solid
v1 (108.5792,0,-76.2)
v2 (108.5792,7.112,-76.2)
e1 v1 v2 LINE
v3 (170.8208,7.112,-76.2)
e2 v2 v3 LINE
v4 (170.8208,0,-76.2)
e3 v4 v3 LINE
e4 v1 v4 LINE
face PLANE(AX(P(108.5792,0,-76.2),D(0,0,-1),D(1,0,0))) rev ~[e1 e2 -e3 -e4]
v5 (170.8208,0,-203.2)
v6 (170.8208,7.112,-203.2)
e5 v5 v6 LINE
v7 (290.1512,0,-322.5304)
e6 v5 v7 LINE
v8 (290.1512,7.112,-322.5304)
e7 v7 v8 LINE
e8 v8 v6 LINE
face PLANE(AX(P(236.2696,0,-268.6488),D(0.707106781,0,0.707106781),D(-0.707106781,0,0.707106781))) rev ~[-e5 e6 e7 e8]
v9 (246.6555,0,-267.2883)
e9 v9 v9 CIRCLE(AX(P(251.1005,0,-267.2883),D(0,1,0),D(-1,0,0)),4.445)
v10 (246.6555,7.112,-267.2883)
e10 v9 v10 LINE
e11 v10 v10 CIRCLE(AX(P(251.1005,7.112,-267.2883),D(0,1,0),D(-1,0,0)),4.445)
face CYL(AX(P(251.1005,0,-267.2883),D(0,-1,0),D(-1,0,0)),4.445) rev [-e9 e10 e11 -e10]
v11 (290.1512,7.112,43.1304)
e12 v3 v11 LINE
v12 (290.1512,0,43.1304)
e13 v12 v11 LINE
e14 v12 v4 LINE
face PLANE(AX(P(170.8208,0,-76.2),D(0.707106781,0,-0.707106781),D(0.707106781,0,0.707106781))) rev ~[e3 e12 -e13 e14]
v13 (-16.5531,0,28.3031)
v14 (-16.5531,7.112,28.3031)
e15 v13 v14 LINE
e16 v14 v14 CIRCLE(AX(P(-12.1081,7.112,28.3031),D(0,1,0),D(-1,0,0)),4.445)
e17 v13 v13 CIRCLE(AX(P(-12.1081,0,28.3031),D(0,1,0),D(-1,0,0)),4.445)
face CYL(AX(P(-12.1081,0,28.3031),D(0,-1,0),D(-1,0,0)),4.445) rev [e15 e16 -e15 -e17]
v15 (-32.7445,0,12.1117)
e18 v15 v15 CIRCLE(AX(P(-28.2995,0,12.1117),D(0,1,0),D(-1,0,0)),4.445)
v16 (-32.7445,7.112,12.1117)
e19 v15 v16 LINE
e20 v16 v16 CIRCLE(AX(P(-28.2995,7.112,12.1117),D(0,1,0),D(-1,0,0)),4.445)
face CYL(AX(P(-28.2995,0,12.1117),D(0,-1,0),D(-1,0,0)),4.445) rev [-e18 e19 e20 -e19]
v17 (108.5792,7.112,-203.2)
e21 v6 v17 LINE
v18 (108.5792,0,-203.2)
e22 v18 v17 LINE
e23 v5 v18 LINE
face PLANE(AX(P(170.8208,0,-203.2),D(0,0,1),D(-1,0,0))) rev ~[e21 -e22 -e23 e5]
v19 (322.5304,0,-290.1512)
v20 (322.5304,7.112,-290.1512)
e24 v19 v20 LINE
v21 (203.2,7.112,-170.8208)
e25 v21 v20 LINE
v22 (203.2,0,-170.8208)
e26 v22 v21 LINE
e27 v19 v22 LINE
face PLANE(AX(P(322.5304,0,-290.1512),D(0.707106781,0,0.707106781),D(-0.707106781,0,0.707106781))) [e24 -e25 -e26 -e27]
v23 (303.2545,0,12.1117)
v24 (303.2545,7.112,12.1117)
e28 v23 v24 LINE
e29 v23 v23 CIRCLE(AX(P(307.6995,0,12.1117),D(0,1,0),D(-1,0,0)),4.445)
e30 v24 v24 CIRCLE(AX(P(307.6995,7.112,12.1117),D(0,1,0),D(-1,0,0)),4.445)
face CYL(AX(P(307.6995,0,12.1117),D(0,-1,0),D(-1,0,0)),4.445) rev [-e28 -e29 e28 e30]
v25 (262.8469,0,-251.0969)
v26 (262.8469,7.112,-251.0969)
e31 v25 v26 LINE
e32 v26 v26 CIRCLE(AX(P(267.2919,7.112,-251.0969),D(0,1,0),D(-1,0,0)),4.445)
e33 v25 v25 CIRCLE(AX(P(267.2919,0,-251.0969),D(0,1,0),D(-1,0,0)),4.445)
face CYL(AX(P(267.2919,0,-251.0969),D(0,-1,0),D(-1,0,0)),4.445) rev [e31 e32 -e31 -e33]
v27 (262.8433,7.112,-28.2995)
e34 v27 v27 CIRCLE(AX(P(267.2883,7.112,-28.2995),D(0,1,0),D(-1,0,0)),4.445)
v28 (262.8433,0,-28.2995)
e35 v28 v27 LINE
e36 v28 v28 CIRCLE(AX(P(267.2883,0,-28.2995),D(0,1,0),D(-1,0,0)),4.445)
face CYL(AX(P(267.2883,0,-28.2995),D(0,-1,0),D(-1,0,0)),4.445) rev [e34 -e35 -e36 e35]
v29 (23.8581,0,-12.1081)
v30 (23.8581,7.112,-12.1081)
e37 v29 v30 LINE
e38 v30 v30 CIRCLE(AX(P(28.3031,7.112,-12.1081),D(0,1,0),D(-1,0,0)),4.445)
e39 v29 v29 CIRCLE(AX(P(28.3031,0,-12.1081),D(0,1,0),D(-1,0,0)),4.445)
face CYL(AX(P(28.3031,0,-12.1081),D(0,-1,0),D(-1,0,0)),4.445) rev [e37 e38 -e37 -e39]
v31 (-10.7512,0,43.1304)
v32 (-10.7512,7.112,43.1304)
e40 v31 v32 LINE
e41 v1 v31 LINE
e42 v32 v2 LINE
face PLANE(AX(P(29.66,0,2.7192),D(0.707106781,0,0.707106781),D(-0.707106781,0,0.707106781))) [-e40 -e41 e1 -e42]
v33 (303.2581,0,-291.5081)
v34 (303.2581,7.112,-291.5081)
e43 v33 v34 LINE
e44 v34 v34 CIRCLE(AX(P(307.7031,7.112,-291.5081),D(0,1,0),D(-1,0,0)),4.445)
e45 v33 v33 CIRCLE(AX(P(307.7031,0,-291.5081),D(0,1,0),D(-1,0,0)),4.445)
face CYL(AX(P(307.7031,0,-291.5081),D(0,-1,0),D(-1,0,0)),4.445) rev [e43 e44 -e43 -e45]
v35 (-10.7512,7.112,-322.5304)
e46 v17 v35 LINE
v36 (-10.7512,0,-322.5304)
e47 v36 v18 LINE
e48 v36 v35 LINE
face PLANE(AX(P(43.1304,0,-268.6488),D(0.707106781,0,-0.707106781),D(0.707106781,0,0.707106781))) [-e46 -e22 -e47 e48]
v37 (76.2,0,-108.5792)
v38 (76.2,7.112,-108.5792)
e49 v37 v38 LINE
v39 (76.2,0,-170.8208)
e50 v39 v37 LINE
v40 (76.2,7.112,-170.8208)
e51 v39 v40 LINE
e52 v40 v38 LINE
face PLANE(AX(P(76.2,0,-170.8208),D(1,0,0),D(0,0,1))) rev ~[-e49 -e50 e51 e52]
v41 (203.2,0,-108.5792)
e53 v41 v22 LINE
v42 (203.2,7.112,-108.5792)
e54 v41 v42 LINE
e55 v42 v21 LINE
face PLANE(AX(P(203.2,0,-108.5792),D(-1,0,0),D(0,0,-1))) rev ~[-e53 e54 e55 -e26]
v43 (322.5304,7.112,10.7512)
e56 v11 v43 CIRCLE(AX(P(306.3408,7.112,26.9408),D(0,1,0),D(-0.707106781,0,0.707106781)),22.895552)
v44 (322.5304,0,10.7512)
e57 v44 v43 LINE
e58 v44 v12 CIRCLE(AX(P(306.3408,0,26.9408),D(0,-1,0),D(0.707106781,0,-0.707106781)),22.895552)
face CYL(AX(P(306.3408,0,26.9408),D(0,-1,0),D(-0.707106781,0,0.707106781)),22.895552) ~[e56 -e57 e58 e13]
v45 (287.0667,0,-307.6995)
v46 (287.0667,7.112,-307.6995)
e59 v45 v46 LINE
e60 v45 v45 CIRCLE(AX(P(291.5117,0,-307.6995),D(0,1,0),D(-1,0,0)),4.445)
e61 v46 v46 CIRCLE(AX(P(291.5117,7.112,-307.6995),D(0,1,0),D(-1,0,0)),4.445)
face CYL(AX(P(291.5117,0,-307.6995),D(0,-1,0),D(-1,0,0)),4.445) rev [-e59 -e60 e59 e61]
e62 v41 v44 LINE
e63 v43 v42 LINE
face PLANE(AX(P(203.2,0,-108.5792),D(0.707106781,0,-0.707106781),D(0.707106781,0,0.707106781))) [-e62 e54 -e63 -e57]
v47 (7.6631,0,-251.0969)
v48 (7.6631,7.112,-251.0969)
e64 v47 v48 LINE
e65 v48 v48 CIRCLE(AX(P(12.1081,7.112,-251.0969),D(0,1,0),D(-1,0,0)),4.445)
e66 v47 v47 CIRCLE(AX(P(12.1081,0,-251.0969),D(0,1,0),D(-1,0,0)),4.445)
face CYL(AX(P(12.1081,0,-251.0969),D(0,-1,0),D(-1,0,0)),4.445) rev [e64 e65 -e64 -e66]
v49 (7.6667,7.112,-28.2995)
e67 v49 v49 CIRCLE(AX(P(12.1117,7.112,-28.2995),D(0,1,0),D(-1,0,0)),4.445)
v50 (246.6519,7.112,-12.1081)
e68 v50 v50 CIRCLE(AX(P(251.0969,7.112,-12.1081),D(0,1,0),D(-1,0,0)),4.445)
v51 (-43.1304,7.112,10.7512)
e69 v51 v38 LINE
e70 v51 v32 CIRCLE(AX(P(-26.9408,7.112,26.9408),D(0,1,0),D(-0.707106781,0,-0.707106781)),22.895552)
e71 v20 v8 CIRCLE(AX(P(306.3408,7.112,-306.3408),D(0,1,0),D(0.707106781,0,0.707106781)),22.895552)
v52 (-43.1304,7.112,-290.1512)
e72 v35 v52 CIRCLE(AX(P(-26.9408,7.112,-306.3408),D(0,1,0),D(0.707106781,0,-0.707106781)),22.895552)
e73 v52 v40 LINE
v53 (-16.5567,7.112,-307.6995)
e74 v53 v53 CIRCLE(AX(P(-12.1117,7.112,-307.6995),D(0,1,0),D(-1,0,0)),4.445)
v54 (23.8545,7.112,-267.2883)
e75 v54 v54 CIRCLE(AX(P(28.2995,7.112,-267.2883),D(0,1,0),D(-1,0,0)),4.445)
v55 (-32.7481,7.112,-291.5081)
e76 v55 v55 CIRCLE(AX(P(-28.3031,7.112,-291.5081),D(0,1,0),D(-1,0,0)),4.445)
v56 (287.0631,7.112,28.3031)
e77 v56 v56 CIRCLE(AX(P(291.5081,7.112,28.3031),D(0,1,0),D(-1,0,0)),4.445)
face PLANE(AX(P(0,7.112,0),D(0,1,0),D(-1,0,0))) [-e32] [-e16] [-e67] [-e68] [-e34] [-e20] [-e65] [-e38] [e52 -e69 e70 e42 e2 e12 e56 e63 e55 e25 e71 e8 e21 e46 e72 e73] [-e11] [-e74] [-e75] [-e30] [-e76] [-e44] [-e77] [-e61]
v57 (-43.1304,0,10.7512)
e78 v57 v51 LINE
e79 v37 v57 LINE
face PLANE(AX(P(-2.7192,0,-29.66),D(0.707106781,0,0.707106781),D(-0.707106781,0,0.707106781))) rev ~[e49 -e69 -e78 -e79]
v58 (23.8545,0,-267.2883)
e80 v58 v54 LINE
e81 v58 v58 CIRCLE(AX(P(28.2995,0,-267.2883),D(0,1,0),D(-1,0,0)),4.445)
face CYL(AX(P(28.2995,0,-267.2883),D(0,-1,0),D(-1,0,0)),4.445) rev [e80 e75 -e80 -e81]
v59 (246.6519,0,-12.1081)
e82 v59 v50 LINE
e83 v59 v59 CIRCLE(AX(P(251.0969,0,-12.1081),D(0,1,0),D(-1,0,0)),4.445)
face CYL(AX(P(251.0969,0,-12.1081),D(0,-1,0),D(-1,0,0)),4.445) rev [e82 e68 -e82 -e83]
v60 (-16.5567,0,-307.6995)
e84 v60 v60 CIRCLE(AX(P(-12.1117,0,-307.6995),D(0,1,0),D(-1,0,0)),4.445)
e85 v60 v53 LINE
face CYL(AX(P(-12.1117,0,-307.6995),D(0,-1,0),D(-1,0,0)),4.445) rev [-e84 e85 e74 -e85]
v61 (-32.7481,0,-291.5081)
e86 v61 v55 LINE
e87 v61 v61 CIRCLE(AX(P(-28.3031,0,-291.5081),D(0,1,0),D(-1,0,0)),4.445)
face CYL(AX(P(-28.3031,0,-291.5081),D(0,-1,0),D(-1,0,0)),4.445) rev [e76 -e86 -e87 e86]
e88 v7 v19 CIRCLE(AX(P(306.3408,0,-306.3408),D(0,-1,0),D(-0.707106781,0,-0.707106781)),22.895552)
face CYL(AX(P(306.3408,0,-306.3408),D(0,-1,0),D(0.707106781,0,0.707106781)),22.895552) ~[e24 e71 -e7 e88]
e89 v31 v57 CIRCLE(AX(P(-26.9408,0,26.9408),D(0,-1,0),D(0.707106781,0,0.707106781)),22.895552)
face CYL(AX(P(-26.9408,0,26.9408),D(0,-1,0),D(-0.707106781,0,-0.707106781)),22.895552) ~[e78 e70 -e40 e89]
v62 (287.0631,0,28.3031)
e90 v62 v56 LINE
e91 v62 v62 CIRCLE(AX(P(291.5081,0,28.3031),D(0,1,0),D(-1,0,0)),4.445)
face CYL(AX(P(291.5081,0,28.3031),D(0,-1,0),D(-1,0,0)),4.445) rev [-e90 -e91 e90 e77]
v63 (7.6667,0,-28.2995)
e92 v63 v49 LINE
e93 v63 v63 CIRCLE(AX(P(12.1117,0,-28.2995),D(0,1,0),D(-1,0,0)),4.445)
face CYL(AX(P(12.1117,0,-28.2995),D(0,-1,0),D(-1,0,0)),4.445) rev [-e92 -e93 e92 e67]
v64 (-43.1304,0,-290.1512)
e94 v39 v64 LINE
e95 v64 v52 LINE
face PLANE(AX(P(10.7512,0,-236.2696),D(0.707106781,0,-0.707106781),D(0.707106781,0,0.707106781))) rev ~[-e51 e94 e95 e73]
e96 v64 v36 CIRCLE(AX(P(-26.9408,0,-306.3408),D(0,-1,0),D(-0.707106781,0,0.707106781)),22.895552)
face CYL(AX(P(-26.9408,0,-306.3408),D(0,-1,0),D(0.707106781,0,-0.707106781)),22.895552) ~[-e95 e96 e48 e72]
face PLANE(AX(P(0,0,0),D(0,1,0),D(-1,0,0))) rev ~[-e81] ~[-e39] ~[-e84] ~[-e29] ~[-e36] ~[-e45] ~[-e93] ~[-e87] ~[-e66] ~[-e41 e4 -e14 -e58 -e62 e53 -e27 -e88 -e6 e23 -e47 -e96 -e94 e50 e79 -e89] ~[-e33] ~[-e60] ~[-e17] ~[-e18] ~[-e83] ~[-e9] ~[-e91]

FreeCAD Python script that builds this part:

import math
import FreeCAD as App
import Part
import Sketcher
Q = App.Units.Quantity

doc = App.newDocument("Part")
body = doc.addObject("PartDesign::Body", "Body")

# Sketch on XZ plane
sketch1 = body.newObject("Sketcher::SketchObject", "Sketch")
sketch1.AttachmentSupport = (doc.getObject("XZ_Plane"), [""])
sketch1.MapMode = "FlatFace"
sketch1.addGeometry(Part.ArcOfCircle(Part.Circle(App.Vector(-26.9408, 26.9408, 0), App.Vector(0, 0, 1), 22.895552), math.radians(45), math.radians(225)), False)
sketch1.addGeometry(Part.LineSegment(App.Vector(-10.7512, 43.1304, 0), App.Vector(108.5792, -76.2, 0)), False)
sketch1.addGeometry(Part.LineSegment(App.Vector(108.5792, -76.2, 0), App.Vector(170.8208, -76.2, 0)), False)
sketch1.addGeometry(Part.LineSegment(App.Vector(170.8208, -76.2, 0), App.Vector(290.1512, 43.1304, 0)), False)
sketch1.addGeometry(Part.ArcOfCircle(Part.Circle(App.Vector(306.3408, 26.9408, 0), App.Vector(0, 0, 1), 22.895552), math.radians(-45), math.radians(135)), False)
sketch1.addGeometry(Part.LineSegment(App.Vector(322.5304, 10.7512, 0), App.Vector(203.2, -108.5792, 0)), False)
sketch1.addGeometry(Part.LineSegment(App.Vector(203.2, -108.5792, 0), App.Vector(203.2, -170.8208, 0)), False)
sketch1.addGeometry(Part.LineSegment(App.Vector(203.2, -170.8208, 0), App.Vector(322.5304, -290.1512, 0)), False)
sketch1.addGeometry(Part.ArcOfCircle(Part.Circle(App.Vector(306.3408, -306.3408, 0), App.Vector(0, 0, 1), 22.895552), math.radians(-135), math.radians(45)), False)
sketch1.addGeometry(Part.LineSegment(App.Vector(290.1512, -322.5304, 0), App.Vector(170.8208, -203.2, 0)), False)
sketch1.addGeometry(Part.LineSegment(App.Vector(170.8208, -203.2, 0), App.Vector(108.5792, -203.2, 0)), False)
sketch1.addGeometry(Part.LineSegment(App.Vector(108.5792, -203.2, 0), App.Vector(-10.7512, -322.5304, 0)), False)
sketch1.addGeometry(Part.ArcOfCircle(Part.Circle(App.Vector(-26.9408, -306.3408, 0), App.Vector(0, 0, 1), 22.895552), math.radians(135), math.radians(315)), False)
sketch1.addGeometry(Part.LineSegment(App.Vector(-43.1304, -290.1512, 0), App.Vector(76.2, -170.8208, 0)), False)
sketch1.addGeometry(Part.LineSegment(App.Vector(76.2, -170.8208, 0), App.Vector(76.2, -108.5792, 0)), False)
sketch1.addGeometry(Part.LineSegment(App.Vector(76.2, -108.5792, 0), App.Vector(-43.1304, 10.7512, 0)), False)
sketch1.addGeometry(Part.Circle(App.Vector(28.3031, -12.1081, 0), App.Vector(0, 0, 1), 4.445), False)
sketch1.addGeometry(Part.Circle(App.Vector(12.1117, -28.2995, 0), App.Vector(0, 0, 1), 4.445), False)
sketch1.addGeometry(Part.Circle(App.Vector(-12.1081, 28.3031, 0), App.Vector(0, 0, 1), 4.445), False)
sketch1.addGeometry(Part.Circle(App.Vector(-28.2995, 12.1117, 0), App.Vector(0, 0, 1), 4.445), False)
sketch1.addGeometry(Part.Circle(App.Vector(267.2919, -251.0969, 0), App.Vector(0, 0, 1), 4.445), False)
sketch1.addGeometry(Part.Circle(App.Vector(291.5117, -307.6995, 0), App.Vector(0, 0, 1), 4.445), False)
sketch1.addGeometry(Part.Circle(App.Vector(307.7031, -291.5081, 0), App.Vector(0, 0, 1), 4.445), False)
sketch1.addGeometry(Part.Circle(App.Vector(251.1005, -267.2883, 0), App.Vector(0, 0, 1), 4.445), False)
sketch1.addGeometry(Part.Circle(App.Vector(12.1081, -251.0969, 0), App.Vector(0, 0, 1), 4.445), False)
sketch1.addGeometry(Part.Circle(App.Vector(28.2995, -267.2883, 0), App.Vector(0, 0, 1), 4.445), False)
sketch1.addGeometry(Part.Circle(App.Vector(251.0969, -12.1081, 0), App.Vector(0, 0, 1), 4.445), False)
sketch1.addGeometry(Part.Circle(App.Vector(267.2883, -28.2995, 0), App.Vector(0, 0, 1), 4.445), False)
sketch1.addGeometry(Part.Circle(App.Vector(-28.3031, -291.5081, 0), App.Vector(0, 0, 1), 4.445), False)
sketch1.addGeometry(Part.Circle(App.Vector(-12.1117, -307.6995, 0), App.Vector(0, 0, 1), 4.445), False)
sketch1.addGeometry(Part.Circle(App.Vector(291.5081, 28.3031, 0), App.Vector(0, 0, 1), 4.445), False)
sketch1.addGeometry(Part.Circle(App.Vector(307.6995, 12.1117, 0), App.Vector(0, 0, 1), 4.445), False)
sketch1.addConstraint(Sketcher.Constraint("Tangent", 0, 1, 1, 1))
sketch1.addConstraint(Sketcher.Constraint("Coincident", 1, 2, 2, 1))
sketch1.addConstraint(Sketcher.Constraint("Coincident", 2, 2, 3, 1))
sketch1.addConstraint(Sketcher.Constraint("Tangent", 3, 2, 4, 2))
sketch1.addConstraint(Sketcher.Constraint("Tangent", 4, 1, 5, 1))
sketch1.addConstraint(Sketcher.Constraint("Coincident", 5, 2, 6, 1))
sketch1.addConstraint(Sketcher.Constraint("Coincident", 6, 2, 7, 1))
sketch1.addConstraint(Sketcher.Constraint("Tangent", 7, 2, 8, 2))
sketch1.addConstraint(Sketcher.Constraint("Tangent", 8, 1, 9, 1))
sketch1.addConstraint(Sketcher.Constraint("Coincident", 9, 2, 10, 1))
sketch1.addConstraint(Sketcher.Constraint("Coincident", 10, 2, 11, 1))
sketch1.addConstraint(Sketcher.Constraint("Tangent", 11, 2, 12, 2))
sketch1.addConstraint(Sketcher.Constraint("Tangent", 12, 1, 13, 1))
sketch1.addConstraint(Sketcher.Constraint("Coincident", 13, 2, 14, 1))
sketch1.addConstraint(Sketcher.Constraint("Coincident", 14, 2, 15, 1))
sketch1.addConstraint(Sketcher.Constraint("Tangent", 15, 2, 0, 2))
sketch1.addConstraint(Sketcher.Constraint("Horizontal", 2))
sketch1.addConstraint(Sketcher.Constraint("Vertical", 6))
sketch1.addConstraint(Sketcher.Constraint("Horizontal", 10))
sketch1.addConstraint(Sketcher.Constraint("Vertical", 14))
sketch1.addConstraint(Sketcher.Constraint("Equal", 0, 4))
sketch1.addConstraint(Sketcher.Constraint("Equal", 4, 8))
sketch1.addConstraint(Sketcher.Constraint("Equal", 8, 12))
sketch1.addConstraint(Sketcher.Constraint("Equal", 16, 17))
sketch1.addConstraint(Sketcher.Constraint("Equal", 17, 18))
sketch1.addConstraint(Sketcher.Constraint("Equal", 18, 19))
sketch1.addConstraint(Sketcher.Constraint("Equal", 19, 20))
sketch1.addConstraint(Sketcher.Constraint("Equal", 20, 21))
sketch1.addConstraint(Sketcher.Constraint("Equal", 21, 22))
sketch1.addConstraint(Sketcher.Constraint("Equal", 22, 23))
sketch1.addConstraint(Sketcher.Constraint("Equal", 23, 24))
sketch1.addConstraint(Sketcher.Constraint("Equal", 24, 25))
sketch1.addConstraint(Sketcher.Constraint("Equal", 25, 26))
sketch1.addConstraint(Sketcher.Constraint("Equal", 26, 27))
sketch1.addConstraint(Sketcher.Constraint("Equal", 27, 28))
sketch1.addConstraint(Sketcher.Constraint("Equal", 28, 29))
sketch1.addConstraint(Sketcher.Constraint("Equal", 29, 30))
sketch1.addConstraint(Sketcher.Constraint("Equal", 30, 31))
sketch1.addConstraint(Sketcher.Constraint("Perpendicular", 1, 3))
sketch1.addConstraint(Sketcher.Constraint("Parallel", 3, 5))
sketch1.addConstraint(Sketcher.Constraint("Perpendicular", 5, 7))
sketch1.addConstraint(Sketcher.Constraint("Parallel", 7, 9))
sketch1.addConstraint(Sketcher.Constraint("Perpendicular", 9, 11))
sketch1.addConstraint(Sketcher.Constraint("Parallel", 11, 13))
sketch1.addConstraint(Sketcher.Constraint("Perpendicular", 13, 15))
sketch1.addConstraint(Sketcher.Constraint("Horizontal", 0, 3, 4, 3))
sketch1.addConstraint(Sketcher.Constraint("Horizontal", 8, 3, 12, 3))
sketch1.addConstraint(Sketcher.Constraint("Horizontal", 20, 3, 24, 3))
sketch1.addConstraint(Sketcher.Constraint("Horizontal", 23, 3, 25, 3))
sketch1.addConstraint(Sketcher.Constraint("Horizontal", 16, 3, 26, 3))
sketch1.addConstraint(Sketcher.Constraint("Horizontal", 17, 3, 27, 3))
sketch1.addConstraint(Sketcher.Constraint("Horizontal", 22, 3, 28, 3))
sketch1.addConstraint(Sketcher.Constraint("Horizontal", 21, 3, 29, 3))
sketch1.addConstraint(Sketcher.Constraint("Horizontal", 18, 3, 30, 3))
sketch1.addConstraint(Sketcher.Constraint("Horizontal", 19, 3, 31, 3))
sketch1.addConstraint(Sketcher.Constraint("Horizontal", 0, 1, 3, 2))
sketch1.addConstraint(Sketcher.Constraint("Horizontal", 6, 2, 13, 2))
sketch1.addConstraint(Sketcher.Constraint("Horizontal", 5, 2, 14, 2))
sketch1.addConstraint(Sketcher.Constraint("Vertical", 4, 3, 8, 3))
sketch1.addConstraint(Sketcher.Constraint("Vertical", 2, 2, 9, 2))
sketch1.addConstraint(Sketcher.Constraint("Equal", 10, 6))
sketch1.addConstraint(Sketcher.Constraint("Equal", 3, 5))
sketch1.addConstraint(Sketcher.Constraint("Diameter", 16, Q("0.35 in")))
sketch1.addConstraint(Sketcher.Constraint("DistanceY", 1, 2, -1, 1, Q("3 in")))
sketch1.addConstraint(Sketcher.Constraint("DistanceX", -1, 1, 13, 2, Q("3 in")))
sketch1.addConstraint(Sketcher.Constraint("Radius", 0, Q("0.9014 in")))
sketch1.addConstraint(Sketcher.Constraint("DistanceX", -1, 1, 5, 2, Q("8 in")))
sketch1.addConstraint(Sketcher.Constraint("DistanceX", 17, 3, 21, 3, Q("11 in")))
sketch1.addConstraint(Sketcher.Constraint("DistanceY", 21, 3, 17, 3, Q("11 in")))
sketch1.addConstraint(Sketcher.Constraint("DistanceY", 20, 3, 30, 3, Q("11 in")))
sketch1.addConstraint(Sketcher.Constraint("DistanceX", 18, 3, 16, 3, Q("1.591 in")))
sketch1.addConstraint(Sketcher.Constraint("DistanceY", 16, 3, 18, 3, Q("1.591 in")))
sketch1.addConstraint(Sketcher.Constraint("DistanceX", 19, 3, 17, 3, Q("1.591 in")))
sketch1.addConstraint(Sketcher.Constraint("DistanceY", 17, 3, 19, 3, Q("1.591 in")))
sketch1.addConstraint(Sketcher.Constraint("DistanceX", 16, 3, 20, 3, Q("9.409 in")))
sketch1.addConstraint(Sketcher.Constraint("DistanceX", 20, 3, 22, 3, Q("1.591 in")))
sketch1.addConstraint(Sketcher.Constraint("DistanceY", 22, 3, 20, 3, Q("1.591 in")))
sketch1.addConstraint(Sketcher.Constraint("DistanceX", 23, 3, 21, 3, Q("1.591 in")))
sketch1.addConstraint(Sketcher.Constraint("DistanceY", 21, 3, 23, 3, Q("1.591 in")))
sketch1.addConstraint(Sketcher.Constraint("DistanceX", 28, 3, 24, 3, Q("1.591 in")))
sketch1.addConstraint(Sketcher.Constraint("DistanceX", 29, 3, 25, 3, Q("1.591 in")))
sketch1.addConstraint(Sketcher.Constraint("DistanceX", 26, 3, 30, 3, Q("1.591 in")))
sketch1.addConstraint(Sketcher.Constraint("DistanceX", 27, 3, 31, 3, Q("1.591 in")))
sketch1.addConstraint(Sketcher.Constraint("DistanceX", -1, 1, 16, 3, Q("1.1143 in")))
sketch1.addConstraint(Sketcher.Constraint("DistanceY", 16, 3, -1, 1, Q("0.4767 in")))
sketch1.addConstraint(Sketcher.Constraint("DistanceX", -1, 1, 24, 3, Q("0.4767 in")))
sketch1.addConstraint(Sketcher.Constraint("DistanceX", -1, 1, 26, 3, Q("9.8857 in")))
sketch1.addConstraint(Sketcher.Constraint("DistanceX", 0, 3, 17, 3, Q("1.5375 in")))
sketch1.addConstraint(Sketcher.Constraint("DistanceY", 12, 3, 17, 3, Q("10.9465 in")))
sketch1.addConstraint(Sketcher.Constraint("DistanceX", 25, 3, 23, 3, Q("8.7717 in")))
sketch1.addConstraint(Sketcher.Constraint("DistanceX", 27, 3, 4, 3, Q("1.5375 in")))
sketch1.addConstraint(Sketcher.Constraint("DistanceY", 19, 3, 0, 1, Q("1.2212 in")))
pad1 = body.newObject("PartDesign::Pad", "Pad")
pad1.Profile = sketch1
pad1.Length = Q("0.28 in")
pad1.Reversed = True

doc.recompute()
